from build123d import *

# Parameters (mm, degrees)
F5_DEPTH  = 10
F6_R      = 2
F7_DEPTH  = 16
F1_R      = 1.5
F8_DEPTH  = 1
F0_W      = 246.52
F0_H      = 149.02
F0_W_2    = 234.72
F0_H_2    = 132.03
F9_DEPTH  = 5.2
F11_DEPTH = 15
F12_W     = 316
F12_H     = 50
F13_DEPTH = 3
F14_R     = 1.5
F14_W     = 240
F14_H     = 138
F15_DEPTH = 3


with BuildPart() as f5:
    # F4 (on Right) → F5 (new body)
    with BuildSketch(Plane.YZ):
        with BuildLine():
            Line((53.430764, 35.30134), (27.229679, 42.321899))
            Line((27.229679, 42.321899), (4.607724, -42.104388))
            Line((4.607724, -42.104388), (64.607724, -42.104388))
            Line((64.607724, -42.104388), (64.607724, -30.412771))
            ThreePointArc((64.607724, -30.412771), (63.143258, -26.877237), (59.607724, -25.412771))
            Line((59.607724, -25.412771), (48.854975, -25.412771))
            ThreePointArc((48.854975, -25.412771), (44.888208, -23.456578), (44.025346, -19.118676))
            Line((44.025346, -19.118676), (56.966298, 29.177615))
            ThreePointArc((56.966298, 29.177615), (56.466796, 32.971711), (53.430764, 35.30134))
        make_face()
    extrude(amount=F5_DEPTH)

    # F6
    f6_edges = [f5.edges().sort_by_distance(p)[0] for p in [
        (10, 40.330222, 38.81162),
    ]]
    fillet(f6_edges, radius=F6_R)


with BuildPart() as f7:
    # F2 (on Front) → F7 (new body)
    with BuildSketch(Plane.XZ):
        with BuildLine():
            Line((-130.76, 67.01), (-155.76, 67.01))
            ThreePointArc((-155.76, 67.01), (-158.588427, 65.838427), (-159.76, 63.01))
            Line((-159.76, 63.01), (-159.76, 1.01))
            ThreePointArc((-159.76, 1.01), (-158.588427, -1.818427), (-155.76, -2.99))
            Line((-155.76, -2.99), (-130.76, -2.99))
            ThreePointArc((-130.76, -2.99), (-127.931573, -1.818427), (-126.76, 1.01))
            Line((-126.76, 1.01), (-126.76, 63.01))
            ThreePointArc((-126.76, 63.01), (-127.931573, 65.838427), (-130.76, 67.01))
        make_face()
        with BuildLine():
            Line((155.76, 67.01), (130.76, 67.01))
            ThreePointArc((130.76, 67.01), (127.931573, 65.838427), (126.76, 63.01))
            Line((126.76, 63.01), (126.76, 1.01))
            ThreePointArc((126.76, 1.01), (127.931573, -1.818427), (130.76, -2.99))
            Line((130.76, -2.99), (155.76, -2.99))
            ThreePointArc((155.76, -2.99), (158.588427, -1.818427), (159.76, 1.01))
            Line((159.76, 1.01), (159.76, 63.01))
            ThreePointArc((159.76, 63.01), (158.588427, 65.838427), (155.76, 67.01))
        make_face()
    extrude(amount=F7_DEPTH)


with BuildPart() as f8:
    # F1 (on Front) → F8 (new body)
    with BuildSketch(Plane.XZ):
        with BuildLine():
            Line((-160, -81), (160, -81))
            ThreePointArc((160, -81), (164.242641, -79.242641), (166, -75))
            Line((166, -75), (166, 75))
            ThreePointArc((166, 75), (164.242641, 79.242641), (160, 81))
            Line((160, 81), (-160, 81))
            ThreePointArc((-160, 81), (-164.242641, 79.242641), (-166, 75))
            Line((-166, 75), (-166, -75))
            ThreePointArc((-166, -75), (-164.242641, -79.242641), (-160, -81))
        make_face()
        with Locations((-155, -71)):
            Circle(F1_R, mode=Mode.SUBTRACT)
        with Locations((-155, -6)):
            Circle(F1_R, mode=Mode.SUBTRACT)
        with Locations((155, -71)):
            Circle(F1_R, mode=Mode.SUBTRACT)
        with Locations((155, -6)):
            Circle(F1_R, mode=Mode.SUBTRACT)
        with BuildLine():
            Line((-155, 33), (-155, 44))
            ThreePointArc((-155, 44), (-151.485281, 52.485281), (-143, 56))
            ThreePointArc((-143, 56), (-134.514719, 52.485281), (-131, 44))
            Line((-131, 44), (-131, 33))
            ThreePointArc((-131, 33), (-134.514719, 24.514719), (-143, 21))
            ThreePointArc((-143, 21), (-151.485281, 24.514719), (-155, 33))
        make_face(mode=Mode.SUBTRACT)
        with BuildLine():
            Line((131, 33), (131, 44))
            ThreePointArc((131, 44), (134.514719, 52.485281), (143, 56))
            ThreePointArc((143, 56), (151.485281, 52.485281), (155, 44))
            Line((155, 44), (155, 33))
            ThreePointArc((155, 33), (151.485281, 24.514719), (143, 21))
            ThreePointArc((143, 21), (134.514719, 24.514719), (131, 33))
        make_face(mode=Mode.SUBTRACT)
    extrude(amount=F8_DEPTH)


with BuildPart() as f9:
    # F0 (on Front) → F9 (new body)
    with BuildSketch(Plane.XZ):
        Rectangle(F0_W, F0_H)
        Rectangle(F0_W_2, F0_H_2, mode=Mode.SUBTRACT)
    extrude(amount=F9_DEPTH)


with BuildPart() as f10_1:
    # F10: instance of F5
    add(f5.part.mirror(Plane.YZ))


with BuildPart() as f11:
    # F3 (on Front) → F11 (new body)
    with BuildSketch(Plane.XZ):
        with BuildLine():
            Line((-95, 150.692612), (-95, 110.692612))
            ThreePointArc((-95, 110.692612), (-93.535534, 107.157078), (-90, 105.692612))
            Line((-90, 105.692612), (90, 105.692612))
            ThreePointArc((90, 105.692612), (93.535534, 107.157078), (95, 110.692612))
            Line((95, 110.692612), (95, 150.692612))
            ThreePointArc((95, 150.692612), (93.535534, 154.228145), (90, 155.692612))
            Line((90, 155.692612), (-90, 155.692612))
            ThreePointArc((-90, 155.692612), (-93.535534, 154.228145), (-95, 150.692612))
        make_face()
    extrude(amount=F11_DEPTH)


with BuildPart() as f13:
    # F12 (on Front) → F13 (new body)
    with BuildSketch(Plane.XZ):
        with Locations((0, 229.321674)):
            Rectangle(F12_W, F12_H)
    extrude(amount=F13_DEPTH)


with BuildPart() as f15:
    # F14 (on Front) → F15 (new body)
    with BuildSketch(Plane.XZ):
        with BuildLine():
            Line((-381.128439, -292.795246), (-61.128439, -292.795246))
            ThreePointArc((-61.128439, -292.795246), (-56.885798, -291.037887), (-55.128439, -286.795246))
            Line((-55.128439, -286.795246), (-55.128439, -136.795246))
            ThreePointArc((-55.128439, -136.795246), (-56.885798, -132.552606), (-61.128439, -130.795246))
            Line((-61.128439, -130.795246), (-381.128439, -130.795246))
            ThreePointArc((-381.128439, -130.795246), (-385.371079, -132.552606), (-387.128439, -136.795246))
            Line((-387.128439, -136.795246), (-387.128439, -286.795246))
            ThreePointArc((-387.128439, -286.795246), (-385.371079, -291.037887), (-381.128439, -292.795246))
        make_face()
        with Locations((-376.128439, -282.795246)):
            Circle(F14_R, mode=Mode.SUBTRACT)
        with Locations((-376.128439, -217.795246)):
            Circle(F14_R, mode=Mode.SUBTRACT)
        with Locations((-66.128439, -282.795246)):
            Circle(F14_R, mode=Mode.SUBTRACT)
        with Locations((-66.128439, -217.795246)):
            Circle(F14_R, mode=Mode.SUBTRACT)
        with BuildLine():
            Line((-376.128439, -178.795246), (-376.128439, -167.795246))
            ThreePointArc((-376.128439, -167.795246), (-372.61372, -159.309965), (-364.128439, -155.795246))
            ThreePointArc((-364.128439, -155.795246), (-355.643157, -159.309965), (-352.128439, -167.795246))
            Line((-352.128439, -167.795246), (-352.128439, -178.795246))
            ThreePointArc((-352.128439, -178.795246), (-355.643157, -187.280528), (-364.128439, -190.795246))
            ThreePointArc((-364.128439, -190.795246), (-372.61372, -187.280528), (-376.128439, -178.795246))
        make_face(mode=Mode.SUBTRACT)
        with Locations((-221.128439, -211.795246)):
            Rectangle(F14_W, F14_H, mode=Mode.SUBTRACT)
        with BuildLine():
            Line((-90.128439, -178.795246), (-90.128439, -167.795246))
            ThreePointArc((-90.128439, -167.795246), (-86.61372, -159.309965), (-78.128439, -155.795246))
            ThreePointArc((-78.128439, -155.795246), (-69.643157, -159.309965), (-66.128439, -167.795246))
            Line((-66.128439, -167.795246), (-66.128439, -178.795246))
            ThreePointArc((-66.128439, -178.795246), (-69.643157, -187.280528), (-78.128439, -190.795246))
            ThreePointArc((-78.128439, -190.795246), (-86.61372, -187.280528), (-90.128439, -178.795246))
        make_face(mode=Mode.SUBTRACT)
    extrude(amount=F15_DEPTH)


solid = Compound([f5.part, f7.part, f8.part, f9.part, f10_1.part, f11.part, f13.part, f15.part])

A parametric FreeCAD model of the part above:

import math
import FreeCAD as App
import Part
import Sketcher

V = App.Vector
Q = App.Units.Quantity


def edges_at(feature, points):
    """Names of the edges that pass closest to the given points."""
    edges = feature.Shape.Edges
    near = lambda p: min(range(len(edges)), key=lambda i: edges[i].distToShape(Part.Vertex(*p))[0])
    return sorted({f"Edge{near(p) + 1}" for p in points})


def add_polygon(sketch, points):
    """Adds a closed chain of lines whose ends are joined by coincident constraints."""
    first, n = sketch.GeometryCount, len(points)
    for a, b in zip(points, points[1:] + points[:1]):
        sketch.addGeometry(Part.LineSegment(App.Vector(*a, 0), App.Vector(*b, 0)), False)
    for i in range(n):
        sketch.addConstraint(Sketcher.Constraint("Coincident", first + i, 2, first + (i + 1) % n, 1))

doc = App.newDocument("Part")
body = doc.addObject("PartDesign::Body", "Body")

sketch1 = body.newObject("Sketcher::SketchObject", "Sketch")
sketch1.AttachmentSupport = (doc.getObject("YZ_Plane"), [""])
sketch1.MapMode = "FlatFace"
sketch1.addGeometry([
    Part.LineSegment(V(53.430764, 35.30134, 0), V(27.229679, 42.321899, 0)),
    Part.LineSegment(V(27.229679, 42.321899, 0), V(4.607724, -42.104388, 0)),
    Part.LineSegment(V(4.607724, -42.104388, 0), V(64.607724, -42.104388, 0)),
    Part.LineSegment(V(64.607724, -42.104388, 0), V(64.607724, -30.412771, 0)),
    Part.ArcOfCircle(Part.Circle(V(59.607724, -30.412771, 0), V(0, 0, 1), 5), math.radians(-0.000004), math.radians(90.000004)),
    Part.LineSegment(V(59.607724, -25.412771, 0), V(48.854975, -25.412771, 0)),
    Part.ArcOfCircle(Part.Circle(V(48.854975, -20.412771, 0), V(0, 0, 1), 5), math.radians(164.999996), math.radians(270.000005)),
    Part.LineSegment(V(44.025346, -19.118676, 0), V(56.966298, 29.177615, 0)),
    Part.ArcOfCircle(Part.Circle(V(52.136669, 30.471711, 0), V(0, 0, 1), 5), math.radians(-15.000009), math.radians(75.000005)),
], False)
sketch1.addConstraint([
    Sketcher.Constraint("Coincident", 0, 2, 1, 1),
    Sketcher.Constraint("Coincident", 1, 2, 2, 1),
    Sketcher.Constraint("Coincident", 2, 2, 3, 1),
    Sketcher.Constraint("Tangent", 3, 2, 4, 1),
    Sketcher.Constraint("Tangent", 4, 2, 5, 1),
    Sketcher.Constraint("Tangent", 5, 2, 6, 2),
    Sketcher.Constraint("Tangent", 6, 1, 7, 1),
    Sketcher.Constraint("Tangent", 7, 2, 8, 1),
    Sketcher.Constraint("Tangent", 8, 2, 0, 1),
    Sketcher.Constraint("Horizontal", 2),
    Sketcher.Constraint("Vertical", 3),
    Sketcher.Constraint("Horizontal", 5),
    Sketcher.Constraint("Equal", 4, 6),
    Sketcher.Constraint("Equal", 6, 8),
    Sketcher.Constraint("Perpendicular", 0, 1),
    Sketcher.Constraint("Parallel", 1, 7),
    Sketcher.Constraint("Radius", 4, 5.0),
    Sketcher.Constraint("DistanceX", 2, 1, 2, 2, 60.0),
    Sketcher.Constraint("Angle", 0, Q("165.000001 deg")),
    Sketcher.Constraint("Distance", 7, 50.0),
    Sketcher.Constraint("DistanceX", 5, 2, 5, 1, 10.752749),
    Sketcher.Constraint("DistanceY", -1, 1, 0, 2, 42.321899),
    Sketcher.Constraint("DistanceX", -1, 1, 7, 2, 56.966298),
    Sketcher.Constraint("DistanceY", 1, 2, 8, 3, 72.576099),
])
pad1 = body.newObject("PartDesign::Pad", "Pad")
pad1.Profile = sketch1
pad1.Length = 10
doc.recompute()

fillet = body.newObject("PartDesign::Fillet", "Fillet")
fillet.Base = (pad1, edges_at(pad1, [(10, 40.33, 38.812)]))
fillet.Radius = 2
body2 = doc.addObject("PartDesign::Body", "Body001")
body2.AllowCompound = True

sketch2 = body2.newObject("Sketcher::SketchObject", "Sketch001")
sketch2.AttachmentSupport = (doc.getObject("XZ_Plane001"), [""])
sketch2.MapMode = "FlatFace"
sketch2.addGeometry([
    Part.LineSegment(V(-130.76, 67.01, 0), V(-155.76, 67.01, 0)),
    Part.ArcOfCircle(Part.Circle(V(-155.76, 63.01, 0), V(0, 0, 1), 4), math.radians(90.000006), math.radians(179.999994)),
    Part.LineSegment(V(-159.76, 63.01, 0), V(-159.76, 1.01, 0)),
    Part.ArcOfCircle(Part.Circle(V(-155.76, 1.01, 0), V(0, 0, 1), 4), math.radians(-179.999994), math.radians(-90.000006)),
    Part.LineSegment(V(-155.76, -2.99, 0), V(-130.76, -2.99, 0)),
    Part.ArcOfCircle(Part.Circle(V(-130.76, 1.01, 0), V(0, 0, 1), 4), math.radians(-89.999994), math.radians(-0.000006)),
    Part.LineSegment(V(-126.76, 1.01, 0), V(-126.76, 63.01, 0)),
    Part.ArcOfCircle(Part.Circle(V(-130.76, 63.01, 0), V(0, 0, 1), 4), math.radians(0.000006), math.radians(89.999994)),
    Part.LineSegment(V(155.76, 67.01, 0), V(130.76, 67.01, 0)),
    Part.ArcOfCircle(Part.Circle(V(130.76, 63.01, 0), V(0, 0, 1), 4), math.radians(90.000006), math.radians(179.999994)),
    Part.LineSegment(V(126.76, 63.01, 0), V(126.76, 1.01, 0)),
    Part.ArcOfCircle(Part.Circle(V(130.76, 1.01, 0), V(0, 0, 1), 4), math.radians(-179.999994), math.radians(-90.000006)),
    Part.LineSegment(V(130.76, -2.99, 0), V(155.76, -2.99, 0)),
    Part.ArcOfCircle(Part.Circle(V(155.76, 1.01, 0), V(0, 0, 1), 4), math.radians(-89.999994), math.radians(-0.000006)),
    Part.LineSegment(V(159.76, 1.01, 0), V(159.76, 63.01, 0)),
    Part.ArcOfCircle(Part.Circle(V(155.76, 63.01, 0), V(0, 0, 1), 4), math.radians(0.000006), math.radians(89.999994)),
], False)
sketch2.addConstraint([
    Sketcher.Constraint("Tangent", 0, 2, 1, 1),
    Sketcher.Constraint("Tangent", 1, 2, 2, 1),
    Sketcher.Constraint("Tangent", 2, 2, 3, 1),
    Sketcher.Constraint("Tangent", 3, 2, 4, 1),
    Sketcher.Constraint("Tangent", 4, 2, 5, 1),
    Sketcher.Constraint("Tangent", 5, 2, 6, 1),
    Sketcher.Constraint("Tangent", 6, 2, 7, 1),
    Sketcher.Constraint("Tangent", 7, 2, 0, 1),
    Sketcher.Constraint("Tangent", 8, 2, 9, 1),
    Sketcher.Constraint("Tangent", 9, 2, 10, 1),
    Sketcher.Constraint("Tangent", 10, 2, 11, 1),
    Sketcher.Constraint("Tangent", 11, 2, 12, 1),
    Sketcher.Constraint("Tangent", 12, 2, 13, 1),
    Sketcher.Constraint("Tangent", 13, 2, 14, 1),
    Sketcher.Constraint("Tangent", 14, 2, 15, 1),
    Sketcher.Constraint("Tangent", 15, 2, 8, 1),
    Sketcher.Constraint("Horizontal", 0),
    Sketcher.Constraint("Vertical", 2),
    Sketcher.Constraint("Horizontal", 4),
    Sketcher.Constraint("Vertical", 6),
    Sketcher.Constraint("Horizontal", 8),
    Sketcher.Constraint("Vertical", 10),
    Sketcher.Constraint("Horizontal", 12),
    Sketcher.Constraint("Vertical", 14),
    Sketcher.Constraint("Equal", 1, 3),
    Sketcher.Constraint("Equal", 3, 5),
    Sketcher.Constraint("Equal", 5, 7),
    Sketcher.Constraint("Equal", 7, 9),
    Sketcher.Constraint("Equal", 9, 11),
    Sketcher.Constraint("Equal", 11, 13),
    Sketcher.Constraint("Equal", 13, 15),
    Sketcher.Constraint("Symmetric", 7, 3, 9, 3, -2),
    Sketcher.Constraint("Symmetric", 3, 3, 13, 3, -2),
    Sketcher.Constraint("Radius", 1, 4.0),
    Sketcher.Constraint("DistanceX", 0, 2, 0, 1, 25.0),
    Sketcher.Constraint("DistanceY", 2, 2, 2, 1, 62.0),
    Sketcher.Constraint("DistanceX", 1, 3, -1, 1, 155.76),
    Sketcher.Constraint("DistanceY", -1, 1, 1, 3, 63.01),
])
pad2 = body2.newObject("PartDesign::Pad", "Pad001")
pad2.Profile = sketch2
pad2.Length = 16
body3 = doc.addObject("PartDesign::Body", "Body002")

sketch3 = body3.newObject("Sketcher::SketchObject", "Sketch002")
sketch3.AttachmentSupport = (doc.getObject("XZ_Plane002"), [""])
sketch3.MapMode = "FlatFace"
sketch3.addGeometry([
    Part.LineSegment(V(-160, -81, 0), V(160, -81, 0)),
    Part.ArcOfCircle(Part.Circle(V(160.000001, -75.000001, 0), V(0, 0, 1), 5.999999), math.radians(-90.00001), math.radians(0.00001)),
    Part.LineSegment(V(166, -75, 0), V(166, 75, 0)),
    Part.ArcOfCircle(Part.Circle(V(160.000001, 75.000001, 0), V(0, 0, 1), 5.999999), math.radians(-0.00001), math.radians(90.00001)),
    Part.LineSegment(V(160, 81, 0), V(-160, 81, 0)),
    Part.ArcOfCircle(Part.Circle(V(-160.000001, 75.000001, 0), V(0, 0, 1), 5.999999), math.radians(89.99999), math.radians(180.00001)),
    Part.LineSegment(V(-166, 75, 0), V(-166, -75, 0)),
    Part.ArcOfCircle(Part.Circle(V(-160.000001, -75.000001, 0), V(0, 0, 1), 5.999999), math.radians(179.99999), math.radians(270.00001)),
    Part.Circle(V(-155, -71, 0), V(0, 0, 1), 1.5),
    Part.Circle(V(155, -71, 0), V(0, 0, 1), 1.5),
    Part.Circle(V(-155, -6, 0), V(0, 0, 1), 1.5),
    Part.ArcOfCircle(Part.Circle(V(-142.999999, 33.000001, 0), V(0, 0, 1), 12.000001), math.radians(-179.999994), math.radians(-90.000006)),
    Part.LineSegment(V(-155, 33, 0), V(-155, 44, 0)),
    Part.ArcOfCircle(Part.Circle(V(-142.999999, 43.999999, 0), V(0, 0, 1), 12.000001), math.radians(90.000006), math.radians(179.999994)),
    Part.ArcOfCircle(Part.Circle(V(-143.000001, 43.999999, 0), V(0, 0, 1), 12.000001), math.radians(0.000006), math.radians(89.999994)),
    Part.LineSegment(V(-131, 44, 0), V(-131, 33, 0)),
    Part.ArcOfCircle(Part.Circle(V(-143.000001, 33.000001, 0), V(0, 0, 1), 12.000001), math.radians(-89.999994), math.radians(-0.000006)),
    Part.Circle(V(155, -6, 0), V(0, 0, 1), 1.5),
    Part.ArcOfCircle(Part.Circle(V(143.000001, 33.000001, 0), V(0, 0, 1), 12.000001), math.radians(-179.999994), math.radians(-90.000006)),
    Part.LineSegment(V(131, 33, 0), V(131, 44, 0)),
    Part.ArcOfCircle(Part.Circle(V(143.000001, 43.999999, 0), V(0, 0, 1), 12.000001), math.radians(90.000006), math.radians(179.999994)),
    Part.ArcOfCircle(Part.Circle(V(142.999999, 43.999999, 0), V(0, 0, 1), 12.000001), math.radians(0.000006), math.radians(89.999994)),
    Part.LineSegment(V(155, 44, 0), V(155, 33, 0)),
    Part.ArcOfCircle(Part.Circle(V(142.999999, 33.000001, 0), V(0, 0, 1), 12.000001), math.radians(-89.999994), math.radians(-0.000006)),
], False)
sketch3.addConstraint([
    Sketcher.Constraint("Tangent", 0, 2, 1, 1),
    Sketcher.Constraint("Tangent", 1, 2, 2, 1),
    Sketcher.Constraint("Tangent", 2, 2, 3, 1),
    Sketcher.Constraint("Tangent", 3, 2, 4, 1),
    Sketcher.Constraint("Tangent", 4, 2, 5, 1),
    Sketcher.Constraint("Tangent", 5, 2, 6, 1),
    Sketcher.Constraint("Tangent", 6, 2, 7, 1),
    Sketcher.Constraint("Tangent", 7, 2, 0, 1),
    Sketcher.Constraint("Tangent", 11, 1, 12, 1),
    Sketcher.Constraint("Tangent", 12, 2, 13, 2),
    Sketcher.Constraint("Tangent", 13, 1, 14, 2),
    Sketcher.Constraint("Tangent", 14, 1, 15, 1),
    Sketcher.Constraint("Tangent", 15, 2, 16, 2),
    Sketcher.Constraint("Tangent", 16, 1, 11, 2),
    Sketcher.Constraint("Tangent", 18, 1, 19, 1),
    Sketcher.Constraint("Tangent", 19, 2, 20, 2),
    Sketcher.Constraint("Tangent", 20, 1, 21, 2),
    Sketcher.Constraint("Tangent", 21, 1, 22, 1),
    Sketcher.Constraint("Tangent", 22, 2, 23, 2),
    Sketcher.Constraint("Tangent", 23, 1, 18, 2),
    Sketcher.Constraint("Horizontal", 0),
    Sketcher.Constraint("Vertical", 2),
    Sketcher.Constraint("Horizontal", 4),
    Sketcher.Constraint("Vertical", 6),
    Sketcher.Constraint("Vertical", 12),
    Sketcher.Constraint("Vertical", 15),
    Sketcher.Constraint("Vertical", 19),
    Sketcher.Constraint("Vertical", 22),
    Sketcher.Constraint("Equal", 1, 3),
    Sketcher.Constraint("Equal", 3, 5),
    Sketcher.Constraint("Equal", 5, 7),
    Sketcher.Constraint("Equal", 8, 9),
    Sketcher.Constraint("Equal", 9, 10),
    Sketcher.Constraint("Equal", 11, 13),
    Sketcher.Constraint("Equal", 13, 14),
    Sketcher.Constraint("Equal", 10, 17),
    Sketcher.Constraint("Equal", 16, 18),
    Sketcher.Constraint("Equal", 18, 20),
    Sketcher.Constraint("Equal", 20, 21),
    Sketcher.Constraint("Symmetric", 1, 3, 5, 3, -1, 1),
    Sketcher.Constraint("Symmetric", 8, 3, 9, 3, -2),
    Sketcher.Constraint("Symmetric", 10, 3, 17, 3, -2),
    Sketcher.Constraint("Symmetric", 11, 3, 18, 3, -2),
    Sketcher.Constraint("Symmetric", 13, 1, 20, 1, -2),
    Sketcher.Constraint("Vertical", 8, 3, 10, 3),
    Sketcher.Constraint("Vertical", 10, 3, 11, 1),
    Sketcher.Constraint("Vertical", 16, 3, 13, 1),
    Sketcher.Constraint("Vertical", 13, 1, 16, 1),
    Sketcher.Constraint("Vertical", 20, 1, 23, 1),
    Sketcher.Constraint("Diameter", 8, 3.0),
    Sketcher.Constraint("Radius", 1, 5.999999),
    Sketcher.Constraint("Radius", 11, 12.000001),
    Sketcher.Constraint("DistanceX", 0, 1, 0, 2, 320.0),
    Sketcher.Constraint("DistanceY", 2, 1, 2, 2, 150.0),
    Sketcher.Constraint("DistanceY", 12, 1, 12, 2, 11.0),
    Sketcher.Constraint("DistanceX", 8, 3, -1, 1, 155.0),
    Sketcher.Constraint("DistanceY", 8, 3, -1, 1, 71.0),
    Sketcher.Constraint("DistanceY", 10, 3, -1, 1, 6.0),
    Sketcher.Constraint("DistanceY", -1, 1, 11, 3, 33.000001),
])
pad3 = body3.newObject("PartDesign::Pad", "Pad002")
pad3.Profile = sketch3
pad3.Length = 1
body4 = doc.addObject("PartDesign::Body", "Body003")

sketch4 = body4.newObject("Sketcher::SketchObject", "Sketch003")
sketch4.AttachmentSupport = (doc.getObject("XZ_Plane003"), [""])
sketch4.MapMode = "FlatFace"
add_polygon(sketch4, [(-123.26, 74.51), (-123.26, -74.51), (123.26, -74.51), (123.26, 74.51)])
add_polygon(sketch4, [(117.36, -66.015), (-117.36, -66.015), (-117.36, 66.015), (117.36, 66.015)])
sketch4.addConstraint([
    Sketcher.Constraint("Vertical", 0),
    Sketcher.Constraint("Horizontal", 1),
    Sketcher.Constraint("Vertical", 2),
    Sketcher.Constraint("Horizontal", 3),
    Sketcher.Constraint("Horizontal", 4),
    Sketcher.Constraint("Vertical", 5),
    Sketcher.Constraint("Horizontal", 6),
    Sketcher.Constraint("Vertical", 7),
    Sketcher.Constraint("Symmetric", 0, 2, 2, 2, -1, 1),
    Sketcher.Constraint("Symmetric", 4, 2, 6, 2, -1, 1),
    Sketcher.Constraint("DistanceX", 1, 1, 1, 2, 246.52),
    Sketcher.Constraint("DistanceX", 4, 2, 4, 1, 234.72),
    Sketcher.Constraint("DistanceY", 0, 2, 0, 1, 149.02),
    Sketcher.Constraint("DistanceY", 5, 1, 5, 2, 132.03),
])
pad4 = body4.newObject("PartDesign::Pad", "Pad003")
pad4.Profile = sketch4
pad4.Length = 5.2
body5 = doc.addObject("PartDesign::Body", "Body004")
doc.recompute()

mirroring = doc.addObject("Part::Mirroring", "Mirroring")
mirroring.Source = body
mirroring.Base = V(0, 0, 0)
mirroring.Normal = V(1, 0, 0)
body5.BaseFeature = mirroring
doc.recompute()
body6 = doc.addObject("PartDesign::Body", "Body005")

sketch5 = body6.newObject("Sketcher::SketchObject", "Sketch004")
sketch5.AttachmentSupport = (doc.getObject("XZ_Plane005"), [""])
sketch5.MapMode = "FlatFace"
sketch5.addGeometry([
    Part.LineSegment(V(-95, 150.692612, 0), V(-95, 110.692612, 0)),
    Part.ArcOfCircle(Part.Circle(V(-90, 110.692612, 0), V(0, 0, 1), 5), math.radians(179.999996), math.radians(270.000004)),
    Part.LineSegment(V(-90, 105.692612, 0), V(90, 105.692612, 0)),
    Part.ArcOfCircle(Part.Circle(V(90, 110.692612, 0), V(0, 0, 1), 5), math.radians(-90.000004), math.radians(0.000004)),
    Part.LineSegment(V(95, 110.692612, 0), V(95, 150.692612, 0)),
    Part.ArcOfCircle(Part.Circle(V(89.999999, 150.692611, 0), V(0, 0, 1), 5.000001), math.radians(0.000016), math.radians(89.999984)),
    Part.LineSegment(V(90, 155.692612, 0), V(-90, 155.692612, 0)),
    Part.ArcOfCircle(Part.Circle(V(-89.999999, 150.692611, 0), V(0, 0, 1), 5.000001), math.radians(90.000016), math.radians(179.999984)),
], False)
sketch5.addConstraint([
    Sketcher.Constraint("Tangent", 0, 2, 1, 1),
    Sketcher.Constraint("Tangent", 1, 2, 2, 1),
    Sketcher.Constraint("Tangent", 2, 2, 3, 1),
    Sketcher.Constraint("Tangent", 3, 2, 4, 1),
    Sketcher.Constraint("Tangent", 4, 2, 5, 1),
    Sketcher.Constraint("Tangent", 5, 2, 6, 1),
    Sketcher.Constraint("Tangent", 6, 2, 7, 1),
    Sketcher.Constraint("Tangent", 7, 2, 0, 1),
    Sketcher.Constraint("Vertical", 0),
    Sketcher.Constraint("Horizontal", 2),
    Sketcher.Constraint("Vertical", 4),
    Sketcher.Constraint("Horizontal", 6),
    Sketcher.Constraint("Equal", 1, 3),
    Sketcher.Constraint("Equal", 3, 5),
    Sketcher.Constraint("Equal", 5, 7),
    Sketcher.Constraint("Radius", 1, 5.0),
    Sketcher.Constraint("DistanceX", 2, 1, 2, 2, 180.0),
    Sketcher.Constraint("DistanceY", 0, 2, 0, 1, 40.0),
    Sketcher.Constraint("DistanceX", 1, 3, -1, 1, 90.0),
    Sketcher.Constraint("DistanceY", -1, 1, 1, 3, 110.692612),
])
pad5 = body6.newObject("PartDesign::Pad", "Pad004")
pad5.Profile = sketch5
pad5.Length = 15
body7 = doc.addObject("PartDesign::Body", "Body006")

sketch6 = body7.newObject("Sketcher::SketchObject", "Sketch005")
sketch6.AttachmentSupport = (doc.getObject("XZ_Plane006"), [""])
sketch6.MapMode = "FlatFace"
add_polygon(sketch6, [(-158, 254.321674), (-158, 204.321674), (158, 204.321674), (158, 254.321674)])
sketch6.addConstraint([
    Sketcher.Constraint("Vertical", 0),
    Sketcher.Constraint("Horizontal", 1),
    Sketcher.Constraint("Vertical", 2),
    Sketcher.Constraint("Horizontal", 3),
    Sketcher.Constraint("DistanceX", 1, 1, 1, 2, 316.0),
    Sketcher.Constraint("DistanceY", 0, 2, 0, 1, 50.0),
    Sketcher.Constraint("DistanceX", 0, 2, -1, 1, 158.0),
    Sketcher.Constraint("DistanceY", -1, 1, 0, 2, 204.321674),
])
pad6 = body7.newObject("PartDesign::Pad", "Pad005")
pad6.Profile = sketch6
pad6.Length = 3
body8 = doc.addObject("PartDesign::Body", "Body007")

sketch7 = body8.newObject("Sketcher::SketchObject", "Sketch006")
sketch7.AttachmentSupport = (doc.getObject("XZ_Plane007"), [""])
sketch7.MapMode = "FlatFace"
sketch7.addGeometry(Part.LineSegment(V(-381.128439, -292.795246, 0), V(-61.128439, -292.795246, 0)), False)
sketch7.addGeometry(Part.ArcOfCircle(Part.Circle(V(-61.128438, -286.795247, 0), V(0, 0, 1), 5.999999), math.radians(-90.00001), math.radians(0.00001)), False)
sketch7.addGeometry(Part.LineSegment(V(-55.128439, -286.795246, 0), V(-55.128439, -136.795246, 0)), False)
sketch7.addGeometry(Part.ArcOfCircle(Part.Circle(V(-61.12844, -136.795247, 0), V(0, 0, 1), 6.000001), math.radians(0.000006), math.radians(89.999994)), False)
sketch7.addGeometry(Part.LineSegment(V(-61.128439, -130.795246, 0), V(-381.128439, -130.795246, 0)), False)
sketch7.addGeometry(Part.ArcOfCircle(Part.Circle(V(-381.128437, -136.795248, 0), V(0, 0, 1), 6.000002), math.radians(90.000022), math.radians(179.999978)), False)
sketch7.addGeometry(Part.LineSegment(V(-387.128439, -136.795246, 0), V(-387.128439, -286.795246, 0)), False)
sketch7.addGeometry(Part.ArcOfCircle(Part.Circle(V(-381.128438, -286.795245, 0), V(0, 0, 1), 6.000001), math.radians(-179.999994), math.radians(-90.000006)), False)
sketch7.addGeometry(Part.Circle(V(-376.128439, -282.795246, 0), V(0, 0, 1), 1.5), False)
sketch7.addGeometry(Part.Circle(V(-376.128439, -217.795246, 0), V(0, 0, 1), 1.5), False)
sketch7.addGeometry(Part.Circle(V(-66.128439, -282.795246, 0), V(0, 0, 1), 1.5), False)
sketch7.addGeometry(Part.Circle(V(-66.128439, -217.795246, 0), V(0, 0, 1), 1.5), False)
sketch7.addGeometry(Part.ArcOfCircle(Part.Circle(V(-364.128439, -178.795246, 0), V(0, 0, 1), 12), math.radians(179.999998), math.radians(270.000002)), False)
sketch7.addGeometry(Part.LineSegment(V(-376.128439, -178.795246, 0), V(-376.128439, -167.795246, 0)), False)
sketch7.addGeometry(Part.ArcOfCircle(Part.Circle(V(-364.128438, -167.795247, 0), V(0, 0, 1), 12.000001), math.radians(90.000006), math.radians(179.999994)), False)
sketch7.addGeometry(Part.ArcOfCircle(Part.Circle(V(-364.128439, -167.795246, 0), V(0, 0, 1), 12), math.radians(-0.000002), math.radians(90.000002)), False)
sketch7.addGeometry(Part.LineSegment(V(-352.128439, -167.795246, 0), V(-352.128439, -178.795246, 0)), False)
sketch7.addGeometry(Part.ArcOfCircle(Part.Circle(V(-364.128437, -178.795248, 0), V(0, 0, 1), 11.999998), math.radians(-90.00001), math.radians(0.00001)), False)
add_polygon(sketch7, [(-101.128439, -280.795246), (-341.128439, -280.795246), (-341.128439, -142.795246), (-101.128439, -142.795246)])
sketch7.addGeometry(Part.ArcOfCircle(Part.Circle(V(-78.128439, -178.795246, 0), V(0, 0, 1), 12), math.radians(179.999998), math.radians(270.000002)), False)
sketch7.addGeometry(Part.LineSegment(V(-90.128439, -178.795246, 0), V(-90.128439, -167.795246, 0)), False)
sketch7.addGeometry(Part.ArcOfCircle(Part.Circle(V(-78.128438, -167.795247, 0), V(0, 0, 1), 12.000001), math.radians(90.000006), math.radians(179.999994)), False)
sketch7.addGeometry(Part.ArcOfCircle(Part.Circle(V(-78.128439, -167.795246, 0), V(0, 0, 1), 12), math.radians(-0.000002), math.radians(90.000002)), False)
sketch7.addGeometry(Part.LineSegment(V(-66.128439, -167.795246, 0), V(-66.128439, -178.795246, 0)), False)
sketch7.addGeometry(Part.ArcOfCircle(Part.Circle(V(-78.128437, -178.795248, 0), V(0, 0, 1), 11.999998), math.radians(-90.00001), math.radians(0.00001)), False)
sketch7.addConstraint([
    Sketcher.Constraint("Tangent", 0, 2, 1, 1),
    Sketcher.Constraint("Tangent", 1, 2, 2, 1),
    Sketcher.Constraint("Tangent", 2, 2, 3, 1),
    Sketcher.Constraint("Tangent", 3, 2, 4, 1),
    Sketcher.Constraint("Tangent", 4, 2, 5, 1),
    Sketcher.Constraint("Tangent", 5, 2, 6, 1),
    Sketcher.Constraint("Tangent", 6, 2, 7, 1),
    Sketcher.Constraint("Tangent", 7, 2, 0, 1),
    Sketcher.Constraint("Tangent", 12, 1, 13, 1),
    Sketcher.Constraint("Tangent", 13, 2, 14, 2),
    Sketcher.Constraint("Tangent", 14, 1, 15, 2),
    Sketcher.Constraint("Tangent", 15, 1, 16, 1),
    Sketcher.Constraint("Tangent", 16, 2, 17, 2),
    Sketcher.Constraint("Tangent", 17, 1, 12, 2),
    Sketcher.Constraint("Tangent", 22, 1, 23, 1),
    Sketcher.Constraint("Tangent", 23, 2, 24, 2),
    Sketcher.Constraint("Tangent", 24, 1, 25, 2),
    Sketcher.Constraint("Tangent", 25, 1, 26, 1),
    Sketcher.Constraint("Tangent", 26, 2, 27, 2),
    Sketcher.Constraint("Tangent", 27, 1, 22, 2),
    Sketcher.Constraint("Horizontal", 0),
    Sketcher.Constraint("Vertical", 2),
    Sketcher.Constraint("Horizontal", 4),
    Sketcher.Constraint("Vertical", 6),
    Sketcher.Constraint("Vertical", 13),
    Sketcher.Constraint("Vertical", 16),
    Sketcher.Constraint("Horizontal", 18),
    Sketcher.Constraint("Vertical", 19),
    Sketcher.Constraint("Horizontal", 20),
    Sketcher.Constraint("Vertical", 21),
    Sketcher.Constraint("Vertical", 23),
    Sketcher.Constraint("Vertical", 26),
    Sketcher.Constraint("Equal", 1, 3),
    Sketcher.Constraint("Equal", 3, 5),
    Sketcher.Constraint("Equal", 5, 7),
    Sketcher.Constraint("Equal", 8, 9),
    Sketcher.Constraint("Equal", 9, 10),
    Sketcher.Constraint("Equal", 10, 11),
    Sketcher.Constraint("Equal", 12, 14),
    Sketcher.Constraint("Equal", 14, 15),
    Sketcher.Constraint("Equal", 17, 22),
    Sketcher.Constraint("Equal", 22, 24),
    Sketcher.Constraint("Equal", 24, 25),
    Sketcher.Constraint("Horizontal", 8, 3, 10, 3),
    Sketcher.Constraint("Horizontal", 9, 3, 11, 3),
    Sketcher.Constraint("Horizontal", 17, 3, 22, 3),
    Sketcher.Constraint("Horizontal", 15, 3, 24, 3),
    Sketcher.Constraint("Vertical", 8, 3, 9, 3),
    Sketcher.Constraint("Vertical", 10, 3, 11, 3),
    Sketcher.Constraint("Vertical", 9, 3, 12, 1),
    Sketcher.Constraint("Vertical", 15, 3, 14, 1),
    Sketcher.Constraint("Vertical", 14, 1, 17, 1),
    Sketcher.Constraint("Vertical", 25, 3, 24, 1),
    Sketcher.Constraint("Vertical", 11, 3, 25, 1),
    Sketcher.Constraint("Vertical", 24, 1, 27, 1),
    Sketcher.Constraint("Diameter", 8, 3.0),
    Sketcher.Constraint("Radius", 1, 5.999999),
    Sketcher.Constraint("Radius", 12, 12.0),
    Sketcher.Constraint("DistanceX", 0, 1, 0, 2, 320.0),
    Sketcher.Constraint("DistanceX", 18, 2, 18, 1, 240.0),
    Sketcher.Constraint("DistanceY", 2, 1, 2, 2, 150.0),
    Sketcher.Constraint("DistanceY", 13, 1, 13, 2, 11.0),
    Sketcher.Constraint("DistanceY", 19, 1, 19, 2, 138.0),
    Sketcher.Constraint("DistanceX", 7, 3, 8, 3, 4.999999),
    Sketcher.Constraint("DistanceY", 7, 3, 8, 3, 3.999999),
    Sketcher.Constraint("DistanceY", 8, 3, 9, 3, 65.0),
    Sketcher.Constraint("DistanceX", 10, 3, 1, 3, 5.000001),
    Sketcher.Constraint("DistanceY", 9, 3, 12, 3, 39.0),
    Sketcher.Constraint("DistanceX", 8, 3, 18, 2, 35.0),
    Sketcher.Constraint("DistanceY", 8, 3, 18, 2, 2.0),
    Sketcher.Constraint("DistanceX", 3, 3, -1, 1, 61.12844),
    Sketcher.Constraint("DistanceY", 5, 3, -1, 1, 136.795248),
])
pad7 = body8.newObject("PartDesign::Pad", "Pad006")
pad7.Profile = sketch7
pad7.Length = 3
mirroring.Visibility = False

doc.recompute()
